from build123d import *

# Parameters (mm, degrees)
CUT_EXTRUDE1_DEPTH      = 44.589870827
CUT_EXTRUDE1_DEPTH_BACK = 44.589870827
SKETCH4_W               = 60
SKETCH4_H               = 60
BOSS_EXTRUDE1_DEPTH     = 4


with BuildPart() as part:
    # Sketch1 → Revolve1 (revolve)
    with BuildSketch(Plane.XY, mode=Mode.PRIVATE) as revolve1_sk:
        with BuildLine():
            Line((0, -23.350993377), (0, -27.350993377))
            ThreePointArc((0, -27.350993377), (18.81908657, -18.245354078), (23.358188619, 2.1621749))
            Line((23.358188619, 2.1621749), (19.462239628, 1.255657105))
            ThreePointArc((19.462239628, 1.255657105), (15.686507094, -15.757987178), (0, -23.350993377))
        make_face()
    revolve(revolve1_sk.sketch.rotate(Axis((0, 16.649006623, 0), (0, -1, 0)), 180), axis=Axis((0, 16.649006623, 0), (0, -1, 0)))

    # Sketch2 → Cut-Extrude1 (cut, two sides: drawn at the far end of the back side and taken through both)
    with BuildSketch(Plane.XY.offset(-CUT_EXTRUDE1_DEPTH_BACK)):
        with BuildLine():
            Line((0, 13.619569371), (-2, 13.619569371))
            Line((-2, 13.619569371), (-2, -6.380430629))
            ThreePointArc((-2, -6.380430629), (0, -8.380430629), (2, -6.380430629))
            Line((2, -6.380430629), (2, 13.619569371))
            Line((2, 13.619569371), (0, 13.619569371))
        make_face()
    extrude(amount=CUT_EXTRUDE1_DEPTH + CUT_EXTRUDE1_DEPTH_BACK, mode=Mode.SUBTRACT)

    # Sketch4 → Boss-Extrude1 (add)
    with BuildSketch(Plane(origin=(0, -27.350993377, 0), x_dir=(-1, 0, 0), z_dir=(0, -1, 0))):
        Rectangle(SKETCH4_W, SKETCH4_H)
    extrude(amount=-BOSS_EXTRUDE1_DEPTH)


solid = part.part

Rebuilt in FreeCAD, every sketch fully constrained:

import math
import FreeCAD as App
import Part
import Sketcher
from FreeCAD import Vector

doc = App.newDocument("Part")
body = doc.addObject("PartDesign::Body", "Body")

sketch1 = body.newObject("Sketcher::SketchObject", "Sketch")
sketch1.AttachmentSupport = (doc.getObject("XY_Plane"), [""])
sketch1.MapMode = "FlatFace"
sketch1.addGeometry([
    Part.LineSegment(Vector(0, -23.4, 0), Vector(0, -27.4, 0)),
    Part.ArcOfCircle(Part.Circle(Vector(0, -3.4, 0), Vector(0, 0, 1), 24), math.radians(-90), math.radians(13)),
    Part.LineSegment(Vector(23.4, 2.2, 0), Vector(19.5, 1.3, 0)),
    Part.ArcOfCircle(Part.Circle(Vector(0, -3.4, 0), Vector(0, 0, 1), 20), math.radians(-90), math.radians(13)),
], False)
sketch1.addConstraint([
    Sketcher.Constraint("Coincident", 0, 2, 1, 1),
    Sketcher.Constraint("Coincident", 1, 2, 2, 1),
    Sketcher.Constraint("Coincident", 2, 2, 3, 2),
    Sketcher.Constraint("Coincident", 3, 1, 0, 1),
    Sketcher.Constraint("Vertical", 0),
    Sketcher.Constraint("Coincident", 3, 3, 1, 3),
    Sketcher.Constraint("PointOnObject", 1, 3, -2),
    Sketcher.Constraint("PointOnObject", 0, 2, -2),
    Sketcher.Constraint("Radius", 1, 24.0),
    Sketcher.Constraint("Radius", 3, 20.0),
    Sketcher.Constraint("DistanceX", -1, 1, 1, 2, 23.358189),
    Sketcher.Constraint("DistanceX", -1, 1, 2, 2, 19.46224),
    Sketcher.Constraint("DistanceY", 1, 3, -1, 1, 3.350993),
])
revolution = body.newObject("PartDesign::Revolution", "Revolution")
revolution.Profile = sketch1
revolution.ReferenceAxis = (sketch1, ["V_Axis"])
revolution.Angle = 360

sketch2 = body.newObject("Sketcher::SketchObject", "Sketch001")
sketch2.AttachmentSupport = (doc.getObject("XY_Plane"), [""])
sketch2.MapMode = "FlatFace"
sketch2.addGeometry([
    Part.LineSegment(Vector(-2, 13.6, 0), Vector(-2, -6.4, 0)),
    Part.ArcOfCircle(Part.Circle(Vector(0, -6.4, 0), Vector(0, 0, 1), 2), math.radians(180), math.radians(360)),
    Part.LineSegment(Vector(2, -6.4, 0), Vector(2, 13.6, 0)),
    Part.LineSegment(Vector(2, 13.6, 0), Vector(-2, 13.6, 0)),
], False)
sketch2.addConstraint([
    Sketcher.Constraint("Tangent", 0, 2, 1, 1),
    Sketcher.Constraint("Tangent", 1, 2, 2, 1),
    Sketcher.Constraint("Coincident", 2, 2, 3, 1),
    Sketcher.Constraint("Coincident", 3, 2, 0, 1),
    Sketcher.Constraint("Vertical", 0),
    Sketcher.Constraint("Vertical", 2),
    Sketcher.Constraint("Horizontal", 3),
    Sketcher.Constraint("PointOnObject", 1, 3, -2),
    Sketcher.Constraint("Radius", 1, 2.0),
    Sketcher.Constraint("DistanceY", 0, 2, 0, 1, 20.0),
    Sketcher.Constraint("DistanceY", 1, 3, -1, 1, 6.380431),
])
pocket1 = body.newObject("PartDesign::Pocket", "Pocket")
pocket1.Profile = sketch2
pocket1.Type = "ThroughAll"
pocket1.Midplane = True

sketch3 = body.newObject("Sketcher::SketchObject", "Sketch002")
sketch3.AttachmentSupport = (doc.getObject("XZ_Plane"), [""])
sketch3.MapMode = "FlatFace"
sketch3.AttachmentOffset = App.Placement(Vector(0, 0, 27.350993), App.Rotation())
sketch3.addGeometry([
    Part.LineSegment(Vector(30, -30, 0), Vector(30, 30, 0)),
    Part.LineSegment(Vector(30, 30, 0), Vector(-30, 30, 0)),
    Part.LineSegment(Vector(-30, 30, 0), Vector(-30, -30, 0)),
    Part.LineSegment(Vector(-30, -30, 0), Vector(30, -30, 0)),
], False)
sketch3.addConstraint([
    Sketcher.Constraint("Coincident", 0, 2, 1, 1),
    Sketcher.Constraint("Coincident", 1, 2, 2, 1),
    Sketcher.Constraint("Coincident", 2, 2, 3, 1),
    Sketcher.Constraint("Coincident", 3, 2, 0, 1),
    Sketcher.Constraint("Vertical", 0),
    Sketcher.Constraint("Horizontal", 1),
    Sketcher.Constraint("Vertical", 2),
    Sketcher.Constraint("Horizontal", 3),
    Sketcher.Constraint("Symmetric", 0, 2, 2, 2, -1, 1),
    Sketcher.Constraint("Equal", 3, 0),
    Sketcher.Constraint("DistanceX", 1, 2, 1, 1, 60.0),
])
pad1 = body.newObject("PartDesign::Pad", "Pad")
pad1.Profile = sketch3
pad1.Length = 4
pad1.Reversed = True

doc.recompute()
